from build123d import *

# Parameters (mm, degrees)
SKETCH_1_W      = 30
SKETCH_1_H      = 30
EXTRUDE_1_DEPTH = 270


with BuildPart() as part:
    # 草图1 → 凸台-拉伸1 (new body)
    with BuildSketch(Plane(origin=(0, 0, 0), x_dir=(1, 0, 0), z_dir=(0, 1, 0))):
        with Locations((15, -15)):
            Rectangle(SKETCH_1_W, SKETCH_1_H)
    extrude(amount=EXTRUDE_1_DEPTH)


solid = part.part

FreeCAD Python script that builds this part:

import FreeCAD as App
import Part
import Sketcher

V = App.Vector

doc = App.newDocument("Part")
params = doc.addObject("Spreadsheet::Sheet", "Params")
for row, (alias, value) in enumerate([
    ("sketch1_width", "30 mm"),
    ("pad1_length", "270 mm"),
], start=1):
    params.set(f"A{row}", alias)
    params.set(f"B{row}", "=" + value)
    params.setAlias(f"B{row}", alias)

body = doc.addObject("PartDesign::Body", "Body")

sketch1 = doc.addObject("Sketcher::SketchObject", "Sketch")
body.addObject(sketch1)
sketch1.AttachmentSupport = (doc.XZ_Plane, [""])
sketch1.MapMode = "FlatFace"
sketch1.addGeometry([
    Part.LineSegment(V(0, 0, 0), V(0, 30, 0)),
    Part.LineSegment(V(0, 30, 0), V(30, 30, 0)),
    Part.LineSegment(V(30, 30, 0), V(30, 0, 0)),
    Part.LineSegment(V(30, 0, 0), V(0, 0, 0)),
], False)
sketch1.addConstraint([
    Sketcher.Constraint("Coincident", 0, 2, 1, 1),
    Sketcher.Constraint("Coincident", 1, 2, 2, 1),
    Sketcher.Constraint("Coincident", 2, 2, 3, 1),
    Sketcher.Constraint("Coincident", 3, 2, 0, 1),
    Sketcher.Constraint("Vertical", 0),
    Sketcher.Constraint("Horizontal", 1),
    Sketcher.Constraint("Vertical", 2),
    Sketcher.Constraint("Horizontal", 3),
    Sketcher.Constraint("Coincident", 3, 2, -1, 1),
    Sketcher.Constraint("Equal", 3, 0),
    Sketcher.Constraint("DistanceX", 1, 1, 1, 2, 30.0),
])
sketch1.setExpression("Constraints[10]", "Params.sketch1_width")
pad1 = doc.addObject("PartDesign::Pad", "Pad")
body.addObject(pad1)
pad1.Profile = sketch1
pad1.setExpression("Length", "Params.pad1_length")
pad1.Reversed = True

doc.recompute()
